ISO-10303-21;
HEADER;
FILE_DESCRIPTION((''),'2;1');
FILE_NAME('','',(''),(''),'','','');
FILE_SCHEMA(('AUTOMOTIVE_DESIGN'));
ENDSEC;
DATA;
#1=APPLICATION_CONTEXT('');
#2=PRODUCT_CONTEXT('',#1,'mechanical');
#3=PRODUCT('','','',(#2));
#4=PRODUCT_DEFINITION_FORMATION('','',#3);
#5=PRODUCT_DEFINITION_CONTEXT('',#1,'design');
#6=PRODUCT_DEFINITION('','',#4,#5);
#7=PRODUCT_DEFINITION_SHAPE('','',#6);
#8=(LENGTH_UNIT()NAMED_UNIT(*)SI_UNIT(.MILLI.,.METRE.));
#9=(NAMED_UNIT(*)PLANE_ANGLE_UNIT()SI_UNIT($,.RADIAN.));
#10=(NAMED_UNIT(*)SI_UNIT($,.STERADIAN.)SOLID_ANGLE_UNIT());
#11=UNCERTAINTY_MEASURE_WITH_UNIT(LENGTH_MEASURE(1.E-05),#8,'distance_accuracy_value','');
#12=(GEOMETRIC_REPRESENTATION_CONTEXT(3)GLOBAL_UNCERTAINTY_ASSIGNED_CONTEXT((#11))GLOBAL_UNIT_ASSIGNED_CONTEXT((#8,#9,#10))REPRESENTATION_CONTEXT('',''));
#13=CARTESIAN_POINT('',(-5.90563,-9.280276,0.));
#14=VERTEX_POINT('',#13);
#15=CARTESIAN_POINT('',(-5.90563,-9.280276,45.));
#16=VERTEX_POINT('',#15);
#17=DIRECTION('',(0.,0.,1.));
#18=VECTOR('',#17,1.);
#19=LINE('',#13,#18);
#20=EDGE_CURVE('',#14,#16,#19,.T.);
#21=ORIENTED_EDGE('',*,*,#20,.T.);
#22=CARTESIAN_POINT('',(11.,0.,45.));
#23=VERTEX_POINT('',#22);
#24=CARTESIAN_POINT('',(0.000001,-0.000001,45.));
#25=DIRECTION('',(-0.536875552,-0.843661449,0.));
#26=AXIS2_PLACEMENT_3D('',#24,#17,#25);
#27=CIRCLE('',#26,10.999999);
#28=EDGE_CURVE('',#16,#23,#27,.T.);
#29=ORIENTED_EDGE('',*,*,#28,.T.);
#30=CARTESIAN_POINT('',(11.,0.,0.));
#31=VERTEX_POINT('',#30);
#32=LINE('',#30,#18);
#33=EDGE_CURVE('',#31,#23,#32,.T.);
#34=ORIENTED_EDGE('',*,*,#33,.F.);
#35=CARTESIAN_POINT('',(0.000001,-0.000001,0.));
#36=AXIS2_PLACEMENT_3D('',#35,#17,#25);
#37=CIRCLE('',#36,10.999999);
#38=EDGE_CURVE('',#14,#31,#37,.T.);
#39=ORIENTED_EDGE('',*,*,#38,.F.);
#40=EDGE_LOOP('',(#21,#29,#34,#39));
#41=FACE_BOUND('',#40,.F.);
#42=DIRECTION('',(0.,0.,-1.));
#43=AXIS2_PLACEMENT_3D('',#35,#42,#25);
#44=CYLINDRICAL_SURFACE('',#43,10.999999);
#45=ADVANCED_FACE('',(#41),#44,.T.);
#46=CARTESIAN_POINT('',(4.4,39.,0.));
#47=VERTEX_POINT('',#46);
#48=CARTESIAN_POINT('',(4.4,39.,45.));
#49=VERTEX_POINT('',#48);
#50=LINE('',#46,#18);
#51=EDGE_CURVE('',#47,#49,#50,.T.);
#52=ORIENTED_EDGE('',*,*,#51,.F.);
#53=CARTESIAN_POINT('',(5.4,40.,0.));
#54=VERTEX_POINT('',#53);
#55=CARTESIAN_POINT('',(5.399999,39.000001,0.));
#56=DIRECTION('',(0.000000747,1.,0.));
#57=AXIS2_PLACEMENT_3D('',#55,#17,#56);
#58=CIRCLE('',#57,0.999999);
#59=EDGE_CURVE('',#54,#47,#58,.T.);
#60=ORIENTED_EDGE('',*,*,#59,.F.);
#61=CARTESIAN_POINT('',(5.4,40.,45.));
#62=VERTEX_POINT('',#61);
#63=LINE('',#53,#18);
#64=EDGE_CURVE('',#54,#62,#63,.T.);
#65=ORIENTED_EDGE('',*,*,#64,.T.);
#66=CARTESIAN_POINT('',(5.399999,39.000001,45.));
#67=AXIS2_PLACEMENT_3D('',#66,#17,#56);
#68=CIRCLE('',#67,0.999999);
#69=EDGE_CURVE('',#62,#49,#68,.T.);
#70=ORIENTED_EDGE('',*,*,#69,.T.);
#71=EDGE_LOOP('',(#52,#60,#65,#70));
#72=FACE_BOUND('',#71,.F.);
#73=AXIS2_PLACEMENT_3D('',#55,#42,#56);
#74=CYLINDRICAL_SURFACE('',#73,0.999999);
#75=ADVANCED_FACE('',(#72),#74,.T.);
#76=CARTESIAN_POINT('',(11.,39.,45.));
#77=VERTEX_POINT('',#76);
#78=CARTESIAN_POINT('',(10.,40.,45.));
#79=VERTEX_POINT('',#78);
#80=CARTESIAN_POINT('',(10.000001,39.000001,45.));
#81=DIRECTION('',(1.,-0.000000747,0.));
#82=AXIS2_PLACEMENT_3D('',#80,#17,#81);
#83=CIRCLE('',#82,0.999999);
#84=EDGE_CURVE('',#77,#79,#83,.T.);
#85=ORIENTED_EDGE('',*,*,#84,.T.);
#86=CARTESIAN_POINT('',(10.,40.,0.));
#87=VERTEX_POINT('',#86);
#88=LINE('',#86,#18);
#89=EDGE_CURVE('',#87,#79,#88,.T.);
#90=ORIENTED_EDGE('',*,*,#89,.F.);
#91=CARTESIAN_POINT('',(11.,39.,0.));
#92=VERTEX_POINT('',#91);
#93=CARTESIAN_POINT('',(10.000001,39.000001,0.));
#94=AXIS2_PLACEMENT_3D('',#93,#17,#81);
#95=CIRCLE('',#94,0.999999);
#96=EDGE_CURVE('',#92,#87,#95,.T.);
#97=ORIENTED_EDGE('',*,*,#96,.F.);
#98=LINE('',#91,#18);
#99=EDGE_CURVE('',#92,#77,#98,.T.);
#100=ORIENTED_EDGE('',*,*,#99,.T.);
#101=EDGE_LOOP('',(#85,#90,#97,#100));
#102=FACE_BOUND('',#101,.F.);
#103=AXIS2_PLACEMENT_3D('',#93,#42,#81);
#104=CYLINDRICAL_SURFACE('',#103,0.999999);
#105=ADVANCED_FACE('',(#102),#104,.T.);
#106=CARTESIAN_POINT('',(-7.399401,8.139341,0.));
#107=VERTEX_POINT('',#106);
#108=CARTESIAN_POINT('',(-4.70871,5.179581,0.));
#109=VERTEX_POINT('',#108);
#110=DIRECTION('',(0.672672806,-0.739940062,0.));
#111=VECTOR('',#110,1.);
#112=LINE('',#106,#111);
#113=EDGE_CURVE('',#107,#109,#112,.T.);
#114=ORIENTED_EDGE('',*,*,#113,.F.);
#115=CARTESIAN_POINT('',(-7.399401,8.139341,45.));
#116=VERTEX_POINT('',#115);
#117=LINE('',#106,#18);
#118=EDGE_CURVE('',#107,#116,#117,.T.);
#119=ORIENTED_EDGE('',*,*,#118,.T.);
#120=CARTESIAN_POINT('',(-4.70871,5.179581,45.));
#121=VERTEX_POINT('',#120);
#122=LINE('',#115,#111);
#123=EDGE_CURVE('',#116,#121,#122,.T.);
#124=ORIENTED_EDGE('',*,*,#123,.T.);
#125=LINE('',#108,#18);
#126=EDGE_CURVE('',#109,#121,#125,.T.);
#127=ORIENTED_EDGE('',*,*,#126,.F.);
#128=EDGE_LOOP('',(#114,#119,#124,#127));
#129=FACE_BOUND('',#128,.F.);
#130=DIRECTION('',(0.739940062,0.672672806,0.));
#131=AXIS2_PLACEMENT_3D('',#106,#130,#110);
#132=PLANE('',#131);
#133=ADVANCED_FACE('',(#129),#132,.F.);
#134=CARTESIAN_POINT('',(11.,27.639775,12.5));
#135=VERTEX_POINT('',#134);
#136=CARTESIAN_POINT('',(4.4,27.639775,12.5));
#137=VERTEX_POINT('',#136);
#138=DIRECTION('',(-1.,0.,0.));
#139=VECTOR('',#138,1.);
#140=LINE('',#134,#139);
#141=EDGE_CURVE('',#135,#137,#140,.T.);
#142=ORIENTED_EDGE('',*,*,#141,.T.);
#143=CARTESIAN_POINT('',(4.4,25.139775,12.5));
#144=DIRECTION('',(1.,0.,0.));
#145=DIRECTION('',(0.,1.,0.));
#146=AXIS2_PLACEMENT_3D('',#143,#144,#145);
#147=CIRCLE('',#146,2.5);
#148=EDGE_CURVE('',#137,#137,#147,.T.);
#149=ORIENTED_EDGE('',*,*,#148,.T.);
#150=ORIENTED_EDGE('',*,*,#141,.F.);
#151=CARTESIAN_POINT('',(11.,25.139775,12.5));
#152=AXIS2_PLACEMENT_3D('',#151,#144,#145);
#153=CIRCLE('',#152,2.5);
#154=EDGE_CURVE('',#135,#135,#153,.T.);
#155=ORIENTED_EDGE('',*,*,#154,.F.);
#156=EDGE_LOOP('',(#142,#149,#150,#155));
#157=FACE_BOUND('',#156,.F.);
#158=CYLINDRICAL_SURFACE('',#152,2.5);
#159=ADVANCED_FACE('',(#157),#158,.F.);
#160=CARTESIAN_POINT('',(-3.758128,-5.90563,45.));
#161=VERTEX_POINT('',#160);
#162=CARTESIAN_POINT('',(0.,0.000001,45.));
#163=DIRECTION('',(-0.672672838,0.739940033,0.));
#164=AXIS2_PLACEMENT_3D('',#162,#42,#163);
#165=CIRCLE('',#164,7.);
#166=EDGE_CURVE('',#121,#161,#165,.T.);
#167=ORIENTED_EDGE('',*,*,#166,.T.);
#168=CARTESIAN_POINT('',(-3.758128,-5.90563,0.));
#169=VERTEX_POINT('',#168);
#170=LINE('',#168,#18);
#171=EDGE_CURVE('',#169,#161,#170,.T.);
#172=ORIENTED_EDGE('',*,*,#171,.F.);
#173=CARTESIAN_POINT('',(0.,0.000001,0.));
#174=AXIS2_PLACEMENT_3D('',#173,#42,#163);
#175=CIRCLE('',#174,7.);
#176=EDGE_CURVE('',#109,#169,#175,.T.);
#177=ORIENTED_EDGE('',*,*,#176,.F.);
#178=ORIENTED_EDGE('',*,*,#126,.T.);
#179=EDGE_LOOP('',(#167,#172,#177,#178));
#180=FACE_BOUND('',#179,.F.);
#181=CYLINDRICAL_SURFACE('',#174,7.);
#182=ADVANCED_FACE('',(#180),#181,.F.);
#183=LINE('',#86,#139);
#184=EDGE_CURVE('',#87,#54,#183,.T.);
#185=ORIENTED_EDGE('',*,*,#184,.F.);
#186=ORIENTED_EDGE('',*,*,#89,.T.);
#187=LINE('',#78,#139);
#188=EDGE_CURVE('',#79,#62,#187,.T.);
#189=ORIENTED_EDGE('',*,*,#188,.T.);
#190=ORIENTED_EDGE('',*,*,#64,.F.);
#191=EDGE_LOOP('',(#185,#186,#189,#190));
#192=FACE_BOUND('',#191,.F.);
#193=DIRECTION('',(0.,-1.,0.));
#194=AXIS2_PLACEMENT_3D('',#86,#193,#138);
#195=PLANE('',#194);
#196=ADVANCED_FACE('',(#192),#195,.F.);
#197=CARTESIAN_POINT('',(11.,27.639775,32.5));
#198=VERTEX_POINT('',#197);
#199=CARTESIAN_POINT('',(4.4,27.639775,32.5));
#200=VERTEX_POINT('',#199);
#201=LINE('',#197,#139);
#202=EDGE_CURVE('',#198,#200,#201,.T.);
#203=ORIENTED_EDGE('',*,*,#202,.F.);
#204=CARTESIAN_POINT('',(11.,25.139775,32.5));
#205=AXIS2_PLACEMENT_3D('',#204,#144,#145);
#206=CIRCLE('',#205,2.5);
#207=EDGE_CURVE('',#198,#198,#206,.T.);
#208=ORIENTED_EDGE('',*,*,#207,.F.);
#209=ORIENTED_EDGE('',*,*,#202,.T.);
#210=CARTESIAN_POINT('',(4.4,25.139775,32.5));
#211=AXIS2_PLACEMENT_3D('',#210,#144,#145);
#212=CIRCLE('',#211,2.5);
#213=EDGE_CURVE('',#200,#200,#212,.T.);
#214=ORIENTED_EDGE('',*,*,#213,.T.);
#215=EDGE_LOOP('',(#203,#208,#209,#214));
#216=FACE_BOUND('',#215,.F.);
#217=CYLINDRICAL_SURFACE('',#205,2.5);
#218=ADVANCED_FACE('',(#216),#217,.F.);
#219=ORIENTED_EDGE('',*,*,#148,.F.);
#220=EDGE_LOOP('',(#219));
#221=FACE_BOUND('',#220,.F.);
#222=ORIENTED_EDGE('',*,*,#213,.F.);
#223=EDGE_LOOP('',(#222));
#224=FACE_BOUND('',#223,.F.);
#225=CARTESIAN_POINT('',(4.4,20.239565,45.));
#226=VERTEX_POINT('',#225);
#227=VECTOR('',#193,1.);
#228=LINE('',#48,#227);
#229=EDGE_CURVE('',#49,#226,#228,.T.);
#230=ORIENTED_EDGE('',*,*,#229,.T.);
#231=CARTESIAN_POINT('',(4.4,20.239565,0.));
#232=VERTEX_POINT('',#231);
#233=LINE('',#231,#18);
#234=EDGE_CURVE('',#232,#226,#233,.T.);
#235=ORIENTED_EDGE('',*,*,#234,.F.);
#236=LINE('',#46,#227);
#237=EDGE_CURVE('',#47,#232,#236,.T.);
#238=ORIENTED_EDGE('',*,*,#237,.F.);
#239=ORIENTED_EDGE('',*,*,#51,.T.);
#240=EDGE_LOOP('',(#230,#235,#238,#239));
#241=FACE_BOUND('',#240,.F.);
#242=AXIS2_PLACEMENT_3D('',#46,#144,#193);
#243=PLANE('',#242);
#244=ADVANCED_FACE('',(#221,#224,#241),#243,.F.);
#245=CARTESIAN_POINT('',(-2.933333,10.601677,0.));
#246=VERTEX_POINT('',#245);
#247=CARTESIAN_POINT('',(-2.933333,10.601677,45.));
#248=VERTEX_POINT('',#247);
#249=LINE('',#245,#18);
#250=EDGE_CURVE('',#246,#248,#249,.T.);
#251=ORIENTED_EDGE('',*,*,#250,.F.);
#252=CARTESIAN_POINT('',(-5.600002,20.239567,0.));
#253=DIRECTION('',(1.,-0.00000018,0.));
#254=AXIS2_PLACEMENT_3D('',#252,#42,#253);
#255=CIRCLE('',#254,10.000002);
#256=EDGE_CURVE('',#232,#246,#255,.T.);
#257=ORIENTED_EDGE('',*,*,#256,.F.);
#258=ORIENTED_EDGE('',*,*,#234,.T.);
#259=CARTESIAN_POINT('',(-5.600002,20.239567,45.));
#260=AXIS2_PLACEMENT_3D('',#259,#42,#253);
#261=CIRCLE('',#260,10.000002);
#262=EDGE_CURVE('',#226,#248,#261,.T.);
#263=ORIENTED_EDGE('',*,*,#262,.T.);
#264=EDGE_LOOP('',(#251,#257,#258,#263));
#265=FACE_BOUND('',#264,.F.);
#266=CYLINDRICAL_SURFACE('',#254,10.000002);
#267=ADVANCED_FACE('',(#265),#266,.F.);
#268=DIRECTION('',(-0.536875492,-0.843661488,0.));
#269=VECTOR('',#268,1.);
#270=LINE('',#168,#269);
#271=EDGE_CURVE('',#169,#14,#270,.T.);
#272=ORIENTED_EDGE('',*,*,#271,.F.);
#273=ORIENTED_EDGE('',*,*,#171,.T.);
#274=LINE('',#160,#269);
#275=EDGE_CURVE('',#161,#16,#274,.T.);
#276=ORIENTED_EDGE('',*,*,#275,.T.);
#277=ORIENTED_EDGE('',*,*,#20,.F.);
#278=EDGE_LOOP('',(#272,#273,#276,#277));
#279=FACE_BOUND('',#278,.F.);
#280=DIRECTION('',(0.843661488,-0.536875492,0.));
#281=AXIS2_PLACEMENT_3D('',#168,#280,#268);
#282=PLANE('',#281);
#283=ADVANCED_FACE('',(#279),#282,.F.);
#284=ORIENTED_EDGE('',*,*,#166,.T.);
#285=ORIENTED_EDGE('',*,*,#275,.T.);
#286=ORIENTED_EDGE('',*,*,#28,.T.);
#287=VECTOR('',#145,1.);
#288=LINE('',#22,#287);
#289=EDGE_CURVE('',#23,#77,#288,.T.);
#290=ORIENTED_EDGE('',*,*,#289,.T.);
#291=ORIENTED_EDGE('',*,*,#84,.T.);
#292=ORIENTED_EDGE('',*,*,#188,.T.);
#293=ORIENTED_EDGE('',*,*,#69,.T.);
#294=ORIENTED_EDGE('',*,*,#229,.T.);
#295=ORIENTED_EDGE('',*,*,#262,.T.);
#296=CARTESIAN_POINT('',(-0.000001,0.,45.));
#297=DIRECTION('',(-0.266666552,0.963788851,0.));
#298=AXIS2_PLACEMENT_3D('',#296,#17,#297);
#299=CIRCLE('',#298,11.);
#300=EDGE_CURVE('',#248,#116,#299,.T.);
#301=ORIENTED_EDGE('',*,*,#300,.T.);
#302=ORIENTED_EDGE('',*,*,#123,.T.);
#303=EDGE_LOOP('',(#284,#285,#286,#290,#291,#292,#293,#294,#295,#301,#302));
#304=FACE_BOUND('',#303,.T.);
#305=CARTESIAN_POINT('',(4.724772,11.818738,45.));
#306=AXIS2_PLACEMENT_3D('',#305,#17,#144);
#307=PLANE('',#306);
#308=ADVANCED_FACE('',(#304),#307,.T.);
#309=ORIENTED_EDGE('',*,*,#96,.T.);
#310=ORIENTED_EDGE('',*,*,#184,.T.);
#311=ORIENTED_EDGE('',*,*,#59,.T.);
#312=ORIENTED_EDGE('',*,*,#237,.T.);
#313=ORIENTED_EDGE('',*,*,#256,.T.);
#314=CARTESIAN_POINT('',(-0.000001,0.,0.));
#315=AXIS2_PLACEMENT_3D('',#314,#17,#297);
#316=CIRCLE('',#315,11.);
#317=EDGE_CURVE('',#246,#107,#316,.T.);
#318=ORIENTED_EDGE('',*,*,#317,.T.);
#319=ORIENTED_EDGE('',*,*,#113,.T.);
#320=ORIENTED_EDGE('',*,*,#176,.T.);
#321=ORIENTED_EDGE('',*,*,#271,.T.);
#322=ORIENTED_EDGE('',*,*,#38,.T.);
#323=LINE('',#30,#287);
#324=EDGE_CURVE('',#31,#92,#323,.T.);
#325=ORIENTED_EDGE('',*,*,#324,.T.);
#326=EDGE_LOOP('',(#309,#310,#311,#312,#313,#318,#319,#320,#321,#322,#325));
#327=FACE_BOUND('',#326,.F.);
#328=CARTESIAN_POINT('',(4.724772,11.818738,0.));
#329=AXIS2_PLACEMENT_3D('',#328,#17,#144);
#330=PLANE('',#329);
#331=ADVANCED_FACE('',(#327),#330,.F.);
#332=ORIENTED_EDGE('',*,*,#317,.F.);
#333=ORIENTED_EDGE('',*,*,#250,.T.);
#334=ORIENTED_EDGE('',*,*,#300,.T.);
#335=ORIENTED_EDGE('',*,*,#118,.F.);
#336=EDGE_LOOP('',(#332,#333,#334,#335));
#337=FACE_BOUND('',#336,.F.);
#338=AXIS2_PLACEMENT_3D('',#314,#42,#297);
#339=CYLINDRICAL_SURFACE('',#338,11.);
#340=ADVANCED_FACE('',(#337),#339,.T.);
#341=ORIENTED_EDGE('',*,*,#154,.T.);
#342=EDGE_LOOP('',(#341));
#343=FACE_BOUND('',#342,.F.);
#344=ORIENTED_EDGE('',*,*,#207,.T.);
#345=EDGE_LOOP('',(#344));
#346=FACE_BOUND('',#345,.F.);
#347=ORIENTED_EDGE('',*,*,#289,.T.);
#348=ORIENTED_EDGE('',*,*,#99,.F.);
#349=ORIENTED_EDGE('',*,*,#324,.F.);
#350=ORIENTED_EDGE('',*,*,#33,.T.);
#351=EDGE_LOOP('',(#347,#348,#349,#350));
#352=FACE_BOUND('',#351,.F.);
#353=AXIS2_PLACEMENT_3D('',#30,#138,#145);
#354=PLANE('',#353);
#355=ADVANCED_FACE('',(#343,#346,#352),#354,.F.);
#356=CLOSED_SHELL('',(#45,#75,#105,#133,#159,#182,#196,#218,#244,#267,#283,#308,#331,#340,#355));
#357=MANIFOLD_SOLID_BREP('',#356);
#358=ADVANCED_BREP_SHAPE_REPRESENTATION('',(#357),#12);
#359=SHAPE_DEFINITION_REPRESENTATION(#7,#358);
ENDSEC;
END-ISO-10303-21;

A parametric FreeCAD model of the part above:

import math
import FreeCAD as App
import Part
import Sketcher
Q = App.Units.Quantity

doc = App.newDocument("Part")
body = doc.addObject("PartDesign::Body", "Body")

sketch1 = body.newObject("Sketcher::SketchObject", "Sketch")
sketch1.AttachmentSupport = (doc.getObject("XY_Plane"), [""])
sketch1.MapMode = "FlatFace"
sketch1.addGeometry([
    Part.ArcOfCircle(Part.Circle(App.Vector(0, 0, 0), App.Vector(0, 0, 1), 7), math.radians(-122), math.radians(132)),
    Part.LineSegment(App.Vector(-3.8, -5.9, 0), App.Vector(-5.9, -9.3, 0)),
    Part.ArcOfCircle(Part.Circle(App.Vector(0, 0, 0), App.Vector(0, 0, 1), 11), math.radians(-122), math.radians(0)),
    Part.LineSegment(App.Vector(11, 0, 0), App.Vector(11, 39, 0)),
    Part.ArcOfCircle(Part.Circle(App.Vector(10, 39, 0), App.Vector(0, 0, 1), 1), math.radians(0), math.radians(90)),
    Part.LineSegment(App.Vector(10, 40, 0), App.Vector(5.4, 40, 0)),
    Part.ArcOfCircle(Part.Circle(App.Vector(5.4, 39, 0), App.Vector(0, 0, 1), 1), math.radians(90), math.radians(180)),
    Part.LineSegment(App.Vector(4.4, 39, 0), App.Vector(4.4, 20.2, 0)),
    Part.ArcOfCircle(Part.Circle(App.Vector(-5.6, 20.2, 0), App.Vector(0, 0, 1), 10), math.radians(-75), math.radians(0)),
    Part.ArcOfCircle(Part.Circle(App.Vector(0, 0, 0), App.Vector(0, 0, 1), 11), math.radians(105), math.radians(132)),
    Part.LineSegment(App.Vector(-7.4, 8.1, 0), App.Vector(-4.7, 5.2, 0)),
], False)
sketch1.addConstraint([
    Sketcher.Constraint("Coincident", 0, 1, 1, 1),
    Sketcher.Constraint("Coincident", 1, 2, 2, 1),
    Sketcher.Constraint("Tangent", 2, 2, 3, 1),
    Sketcher.Constraint("Tangent", 3, 2, 4, 1),
    Sketcher.Constraint("Tangent", 4, 2, 5, 1),
    Sketcher.Constraint("Tangent", 5, 2, 6, 1),
    Sketcher.Constraint("Tangent", 6, 2, 7, 1),
    Sketcher.Constraint("Tangent", 7, 2, 8, 2),
    Sketcher.Constraint("Tangent", 8, 1, 9, 1),
    Sketcher.Constraint("Coincident", 9, 2, 10, 1),
    Sketcher.Constraint("Coincident", 10, 2, 0, 2),
    Sketcher.Constraint("Vertical", 3),
    Sketcher.Constraint("Horizontal", 5),
    Sketcher.Constraint("Vertical", 7),
    Sketcher.Constraint("Coincident", 0, 3, -1, 1),
    Sketcher.Constraint("Coincident", 2, 3, -1, 1),
    Sketcher.Constraint("Coincident", 9, 3, -1, 1),
    Sketcher.Constraint("Equal", 4, 6),
    Sketcher.Constraint("Equal", 2, 9),
    Sketcher.Constraint("Radius", 0, Q("7 mm")),
    Sketcher.Constraint("Radius", 2, Q("10.999999 mm")),
    Sketcher.Constraint("Radius", 4, Q("0.999999 mm")),
    Sketcher.Constraint("DistanceY", 3, 1, 3, 2, Q("39 mm")),
    Sketcher.Constraint("DistanceX", 5, 2, 5, 1, Q("4.6 mm")),
    Sketcher.Constraint("DistanceX", 8, 3, 6, 3, Q("11.000001 mm")),
    Sketcher.Constraint("DistanceX", 9, 2, -1, 1, Q("7.399401 mm")),
    Sketcher.Constraint("DistanceY", 0, 1, -1, 1, Q("5.90563 mm")),
    Sketcher.Constraint("DistanceX", 1, 2, -1, 1, Q("5.90563 mm")),
    Sketcher.Constraint("DistanceX", 10, 2, -1, 1, Q("4.70871 mm")),
])
pad1 = body.newObject("PartDesign::Pad", "Pad")
pad1.Profile = sketch1
pad1.Length = 45

sketch2 = body.newObject("Sketcher::SketchObject", "Sketch001")
sketch2.AttachmentSupport = (doc.getObject("YZ_Plane"), [""])
sketch2.MapMode = "FlatFace"
sketch2.AttachmentOffset = App.Placement(App.Vector(0, 0, 11), App.Rotation())
sketch2.addGeometry([
    Part.Circle(App.Vector(25.1, 32.5, 0), App.Vector(0, 0, 1), 2.5),
    Part.Circle(App.Vector(25.1, 12.5, 0), App.Vector(0, 0, 1), 2.5),
], False)
sketch2.addConstraint([
    Sketcher.Constraint("Equal", 0, 1),
    Sketcher.Constraint("Vertical", 0, 3, 1, 3),
    Sketcher.Constraint("Diameter", 0, Q("5 mm")),
    Sketcher.Constraint("DistanceY", 1, 3, 0, 3, Q("20 mm")),
    Sketcher.Constraint("DistanceY", -1, 1, 0, 3, Q("32.5 mm")),
    Sketcher.Constraint("DistanceX", -1, 1, 0, 3, Q("25.139775 mm")),
])
pocket1 = body.newObject("PartDesign::Pocket", "Pocket")
pocket1.Profile = sketch2
pocket1.Type = "ThroughAll"

doc.recompute()
